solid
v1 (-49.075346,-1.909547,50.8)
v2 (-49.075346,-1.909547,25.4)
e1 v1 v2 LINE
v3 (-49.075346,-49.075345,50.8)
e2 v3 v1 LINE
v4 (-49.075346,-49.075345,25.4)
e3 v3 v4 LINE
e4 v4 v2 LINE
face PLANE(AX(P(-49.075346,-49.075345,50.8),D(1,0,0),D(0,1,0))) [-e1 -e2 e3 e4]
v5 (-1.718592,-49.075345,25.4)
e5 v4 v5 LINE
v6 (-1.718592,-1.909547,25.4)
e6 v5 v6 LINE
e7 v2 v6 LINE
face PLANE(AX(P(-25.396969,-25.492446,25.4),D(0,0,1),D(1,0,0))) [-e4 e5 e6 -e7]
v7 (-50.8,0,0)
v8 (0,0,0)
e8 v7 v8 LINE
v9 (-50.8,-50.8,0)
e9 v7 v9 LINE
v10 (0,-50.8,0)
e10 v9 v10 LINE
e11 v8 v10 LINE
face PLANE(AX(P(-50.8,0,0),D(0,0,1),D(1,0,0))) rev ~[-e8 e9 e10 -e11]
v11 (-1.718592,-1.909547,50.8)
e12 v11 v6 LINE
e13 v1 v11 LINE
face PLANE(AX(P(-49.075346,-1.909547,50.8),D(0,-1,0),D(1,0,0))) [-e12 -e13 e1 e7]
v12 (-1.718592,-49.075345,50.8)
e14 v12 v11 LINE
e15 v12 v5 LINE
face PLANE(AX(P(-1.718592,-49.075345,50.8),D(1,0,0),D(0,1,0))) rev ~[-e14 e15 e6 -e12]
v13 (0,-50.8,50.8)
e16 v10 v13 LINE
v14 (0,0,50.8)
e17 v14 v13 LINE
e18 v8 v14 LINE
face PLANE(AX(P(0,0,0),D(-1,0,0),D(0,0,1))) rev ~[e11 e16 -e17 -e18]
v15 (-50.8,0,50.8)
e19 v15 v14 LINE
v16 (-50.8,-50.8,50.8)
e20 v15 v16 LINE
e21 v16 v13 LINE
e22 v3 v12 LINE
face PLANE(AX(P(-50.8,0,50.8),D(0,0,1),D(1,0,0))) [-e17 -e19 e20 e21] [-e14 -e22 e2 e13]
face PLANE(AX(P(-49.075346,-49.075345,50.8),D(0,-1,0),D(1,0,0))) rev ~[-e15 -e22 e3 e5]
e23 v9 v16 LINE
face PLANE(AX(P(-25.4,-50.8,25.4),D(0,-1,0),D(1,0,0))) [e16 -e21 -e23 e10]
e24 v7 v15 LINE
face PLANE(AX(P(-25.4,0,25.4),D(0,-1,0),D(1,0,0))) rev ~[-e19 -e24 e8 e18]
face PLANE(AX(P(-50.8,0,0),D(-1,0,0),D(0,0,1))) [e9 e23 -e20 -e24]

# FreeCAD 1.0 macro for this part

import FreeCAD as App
import Part
import Sketcher
Q = App.Units.Quantity

doc = App.newDocument("Part")
body = doc.addObject("PartDesign::Body", "Body")

# Sketch on XZ plane
sketch1 = doc.addObject("Sketcher::SketchObject", "Sketch")
body.addObject(sketch1)
sketch1.AttachmentSupport = (doc.XZ_Plane, [""])
sketch1.MapMode = "FlatFace"
sketch1.addGeometry(Part.LineSegment(App.Vector(-51, 51, 0), App.Vector(-51, 0, 0)), False)
sketch1.addGeometry(Part.LineSegment(App.Vector(-51, 0, 0), App.Vector(0, 0, 0)), False)
sketch1.addGeometry(Part.LineSegment(App.Vector(0, 0, 0), App.Vector(0, 51, 0)), False)
sketch1.addGeometry(Part.LineSegment(App.Vector(0, 51, 0), App.Vector(-51, 51, 0)), False)
sketch1.addConstraint(Sketcher.Constraint("Coincident", 0, 2, 1, 1))
sketch1.addConstraint(Sketcher.Constraint("Coincident", 1, 2, 2, 1))
sketch1.addConstraint(Sketcher.Constraint("Coincident", 2, 2, 3, 1))
sketch1.addConstraint(Sketcher.Constraint("Coincident", 3, 2, 0, 1))
sketch1.addConstraint(Sketcher.Constraint("Vertical", 0))
sketch1.addConstraint(Sketcher.Constraint("Horizontal", 1))
sketch1.addConstraint(Sketcher.Constraint("Vertical", 2))
sketch1.addConstraint(Sketcher.Constraint("Horizontal", 3))
sketch1.addConstraint(Sketcher.Constraint("Coincident", 1, 2, -1, 1))
sketch1.addConstraint(Sketcher.Constraint("Equal", 3, 0))
sketch1.addConstraint(Sketcher.Constraint("DistanceX", 1, 1, 1, 2, Q("2 in")))
pad1 = doc.addObject("PartDesign::Pad", "Pad")
body.addObject(pad1)
pad1.Profile = sketch1
pad1.Length = Q("2 in")

# Sketch on XY plane
sketch2 = doc.addObject("Sketcher::SketchObject", "Sketch001")
body.addObject(sketch2)
sketch2.AttachmentSupport = (doc.XY_Plane, [""])
sketch2.MapMode = "FlatFace"
sketch2.AttachmentOffset = App.Placement(App.Vector(0, 0, 2 * 25.4), App.Rotation())
sketch2.addGeometry(Part.LineSegment(App.Vector(-49, -2, 0), App.Vector(-49, -49, 0)), False)
sketch2.addGeometry(Part.LineSegment(App.Vector(-49, -49, 0), App.Vector(-2, -49, 0)), False)
sketch2.addGeometry(Part.LineSegment(App.Vector(-2, -49, 0), App.Vector(-2, -2, 0)), False)
sketch2.addGeometry(Part.LineSegment(App.Vector(-2, -2, 0), App.Vector(-49, -2, 0)), False)
sketch2.addConstraint(Sketcher.Constraint("Coincident", 0, 2, 1, 1))
sketch2.addConstraint(Sketcher.Constraint("Coincident", 1, 2, 2, 1))
sketch2.addConstraint(Sketcher.Constraint("Coincident", 2, 2, 3, 1))
sketch2.addConstraint(Sketcher.Constraint("Coincident", 3, 2, 0, 1))
sketch2.addConstraint(Sketcher.Constraint("Vertical", 0))
sketch2.addConstraint(Sketcher.Constraint("Horizontal", 1))
sketch2.addConstraint(Sketcher.Constraint("Vertical", 2))
sketch2.addConstraint(Sketcher.Constraint("Horizontal", 3))
sketch2.addConstraint(Sketcher.Constraint("DistanceY", 0, 2, 0, 1, 47.165799))
sketch2.addConstraint(Sketcher.Constraint("DistanceX", 1, 1, 1, 2, 47.356754))
sketch2.addConstraint(Sketcher.Constraint("DistanceX", 1, 2, -1, 1, 1.718592))
sketch2.addConstraint(Sketcher.Constraint("DistanceY", 0, 2, -1, 1, 49.075345))
pocket1 = doc.addObject("PartDesign::Pocket", "Pocket")
body.addObject(pocket1)
pocket1.Profile = sketch2
pocket1.Length = Q("1 in")

doc.recompute()
